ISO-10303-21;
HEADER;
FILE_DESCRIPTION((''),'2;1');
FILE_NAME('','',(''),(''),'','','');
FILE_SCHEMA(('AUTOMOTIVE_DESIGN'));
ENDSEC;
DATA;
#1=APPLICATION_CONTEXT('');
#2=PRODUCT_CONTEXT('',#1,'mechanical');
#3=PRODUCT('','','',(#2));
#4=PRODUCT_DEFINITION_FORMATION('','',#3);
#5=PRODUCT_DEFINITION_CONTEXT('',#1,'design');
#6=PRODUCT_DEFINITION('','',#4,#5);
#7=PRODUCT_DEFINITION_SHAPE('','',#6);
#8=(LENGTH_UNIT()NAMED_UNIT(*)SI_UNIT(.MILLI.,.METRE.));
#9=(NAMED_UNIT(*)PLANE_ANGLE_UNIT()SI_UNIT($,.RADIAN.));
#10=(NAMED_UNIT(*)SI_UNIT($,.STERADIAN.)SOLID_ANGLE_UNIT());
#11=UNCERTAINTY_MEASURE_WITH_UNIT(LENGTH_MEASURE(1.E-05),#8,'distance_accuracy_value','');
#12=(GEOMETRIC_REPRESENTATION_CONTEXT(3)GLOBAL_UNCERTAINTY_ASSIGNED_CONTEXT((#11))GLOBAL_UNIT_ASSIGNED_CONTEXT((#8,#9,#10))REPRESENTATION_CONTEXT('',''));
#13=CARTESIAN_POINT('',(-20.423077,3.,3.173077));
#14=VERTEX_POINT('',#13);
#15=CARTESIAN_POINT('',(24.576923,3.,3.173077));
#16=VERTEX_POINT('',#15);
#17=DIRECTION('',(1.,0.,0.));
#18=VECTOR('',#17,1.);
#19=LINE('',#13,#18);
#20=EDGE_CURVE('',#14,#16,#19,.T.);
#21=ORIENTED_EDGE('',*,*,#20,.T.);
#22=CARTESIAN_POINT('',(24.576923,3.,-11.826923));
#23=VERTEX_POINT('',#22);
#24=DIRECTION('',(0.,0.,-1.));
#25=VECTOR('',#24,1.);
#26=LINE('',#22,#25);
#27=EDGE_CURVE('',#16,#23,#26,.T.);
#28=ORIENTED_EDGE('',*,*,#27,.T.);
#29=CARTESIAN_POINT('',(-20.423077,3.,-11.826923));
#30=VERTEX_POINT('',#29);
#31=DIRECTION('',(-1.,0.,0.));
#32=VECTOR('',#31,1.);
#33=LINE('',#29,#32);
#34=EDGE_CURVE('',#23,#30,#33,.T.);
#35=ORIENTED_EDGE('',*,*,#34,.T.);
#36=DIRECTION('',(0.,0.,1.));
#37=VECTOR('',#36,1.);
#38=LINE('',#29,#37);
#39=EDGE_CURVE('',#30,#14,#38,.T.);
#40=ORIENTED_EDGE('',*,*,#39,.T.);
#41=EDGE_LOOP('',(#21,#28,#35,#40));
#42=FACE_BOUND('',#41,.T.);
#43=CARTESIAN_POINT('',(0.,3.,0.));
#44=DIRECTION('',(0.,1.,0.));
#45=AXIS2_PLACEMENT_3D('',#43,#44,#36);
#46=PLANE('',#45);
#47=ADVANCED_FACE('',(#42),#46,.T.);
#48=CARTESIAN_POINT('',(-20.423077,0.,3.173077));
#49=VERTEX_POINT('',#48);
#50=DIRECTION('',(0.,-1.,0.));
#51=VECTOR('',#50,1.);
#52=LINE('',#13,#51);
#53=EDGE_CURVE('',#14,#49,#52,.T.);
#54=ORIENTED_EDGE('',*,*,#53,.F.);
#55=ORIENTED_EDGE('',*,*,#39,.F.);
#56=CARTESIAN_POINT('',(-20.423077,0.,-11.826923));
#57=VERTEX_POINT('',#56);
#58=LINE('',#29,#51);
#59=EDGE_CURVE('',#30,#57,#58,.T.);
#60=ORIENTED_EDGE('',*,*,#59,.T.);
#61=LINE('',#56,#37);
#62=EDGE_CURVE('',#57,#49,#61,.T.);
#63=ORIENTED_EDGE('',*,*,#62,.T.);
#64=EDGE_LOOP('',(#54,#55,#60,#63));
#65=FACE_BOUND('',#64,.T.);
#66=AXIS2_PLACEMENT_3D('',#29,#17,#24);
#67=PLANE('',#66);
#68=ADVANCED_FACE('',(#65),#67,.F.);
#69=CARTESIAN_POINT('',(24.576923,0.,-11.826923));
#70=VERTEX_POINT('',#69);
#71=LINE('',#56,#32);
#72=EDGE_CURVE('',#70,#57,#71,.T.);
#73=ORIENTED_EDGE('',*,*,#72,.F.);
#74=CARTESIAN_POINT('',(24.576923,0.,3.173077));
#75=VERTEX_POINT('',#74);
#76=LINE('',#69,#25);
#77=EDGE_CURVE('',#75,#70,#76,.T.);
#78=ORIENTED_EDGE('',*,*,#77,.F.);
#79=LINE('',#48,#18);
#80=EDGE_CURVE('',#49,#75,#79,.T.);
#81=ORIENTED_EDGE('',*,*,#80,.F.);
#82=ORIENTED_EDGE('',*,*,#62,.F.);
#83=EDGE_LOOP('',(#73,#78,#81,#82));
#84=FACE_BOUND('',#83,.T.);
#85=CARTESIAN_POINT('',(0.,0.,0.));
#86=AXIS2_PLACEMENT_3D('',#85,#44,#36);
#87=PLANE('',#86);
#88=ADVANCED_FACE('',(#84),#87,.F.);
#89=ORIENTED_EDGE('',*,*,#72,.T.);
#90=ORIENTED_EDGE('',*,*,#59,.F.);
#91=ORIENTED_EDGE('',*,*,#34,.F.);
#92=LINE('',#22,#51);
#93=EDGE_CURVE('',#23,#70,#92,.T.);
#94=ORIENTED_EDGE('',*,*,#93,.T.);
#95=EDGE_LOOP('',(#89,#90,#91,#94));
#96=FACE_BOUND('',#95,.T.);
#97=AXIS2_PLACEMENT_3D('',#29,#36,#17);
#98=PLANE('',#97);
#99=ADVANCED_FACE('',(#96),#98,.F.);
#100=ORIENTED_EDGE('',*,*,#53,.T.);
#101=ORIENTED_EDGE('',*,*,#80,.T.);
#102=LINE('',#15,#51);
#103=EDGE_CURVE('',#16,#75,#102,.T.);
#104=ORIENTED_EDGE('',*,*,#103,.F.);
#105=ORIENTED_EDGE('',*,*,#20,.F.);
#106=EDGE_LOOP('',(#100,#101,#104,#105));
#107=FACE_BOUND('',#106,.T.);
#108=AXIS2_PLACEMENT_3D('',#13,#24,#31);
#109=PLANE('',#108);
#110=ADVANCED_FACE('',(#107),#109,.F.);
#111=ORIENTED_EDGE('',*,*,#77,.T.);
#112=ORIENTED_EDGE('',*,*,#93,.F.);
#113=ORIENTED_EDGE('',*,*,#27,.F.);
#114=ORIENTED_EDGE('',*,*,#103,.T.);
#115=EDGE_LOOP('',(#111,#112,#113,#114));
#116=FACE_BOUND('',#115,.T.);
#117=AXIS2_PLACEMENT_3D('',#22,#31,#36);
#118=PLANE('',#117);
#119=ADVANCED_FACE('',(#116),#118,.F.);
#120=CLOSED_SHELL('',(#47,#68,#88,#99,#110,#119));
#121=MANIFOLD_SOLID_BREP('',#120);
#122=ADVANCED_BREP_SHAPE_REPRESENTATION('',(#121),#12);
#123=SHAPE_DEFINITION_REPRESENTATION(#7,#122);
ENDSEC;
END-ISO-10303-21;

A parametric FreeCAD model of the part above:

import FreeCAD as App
import Part
import Sketcher


def add_polygon(sketch, points):
    """Adds a closed chain of lines whose ends are joined by coincident constraints."""
    first, n = sketch.GeometryCount, len(points)
    for a, b in zip(points, points[1:] + points[:1]):
        sketch.addGeometry(Part.LineSegment(App.Vector(*a, 0), App.Vector(*b, 0)), False)
    for i in range(n):
        sketch.addConstraint(Sketcher.Constraint("Coincident", first + i, 2, first + (i + 1) % n, 1))

doc = App.newDocument("Part")
body = doc.addObject("PartDesign::Body", "Body")

# Sketch on XZ plane
sketch1 = body.newObject("Sketcher::SketchObject", "Sketch")
sketch1.AttachmentSupport = (doc.getObject("XZ_Plane"), [""])
sketch1.MapMode = "FlatFace"
add_polygon(sketch1, [(-20, -12), (-20, 3), (25, 3), (25, -12)])  # lines 0-3
sketch1.addConstraint([
    Sketcher.Constraint("Vertical", 0),
    Sketcher.Constraint("Horizontal", 1),
    Sketcher.Constraint("Vertical", 2),
    Sketcher.Constraint("Horizontal", 3),
    Sketcher.Constraint("DistanceX", 1, 1, 1, 2, 45.0),
    Sketcher.Constraint("DistanceY", 0, 1, 0, 2, 15.0),
    Sketcher.Constraint("DistanceX", 0, 2, -1, 1, 20.423077),
    Sketcher.Constraint("DistanceY", -1, 1, 0, 2, 3.173077),
])
pad1 = body.newObject("PartDesign::Pad", "Pad")
pad1.Profile = sketch1
pad1.Length = 3
pad1.Reversed = True

doc.recompute()
